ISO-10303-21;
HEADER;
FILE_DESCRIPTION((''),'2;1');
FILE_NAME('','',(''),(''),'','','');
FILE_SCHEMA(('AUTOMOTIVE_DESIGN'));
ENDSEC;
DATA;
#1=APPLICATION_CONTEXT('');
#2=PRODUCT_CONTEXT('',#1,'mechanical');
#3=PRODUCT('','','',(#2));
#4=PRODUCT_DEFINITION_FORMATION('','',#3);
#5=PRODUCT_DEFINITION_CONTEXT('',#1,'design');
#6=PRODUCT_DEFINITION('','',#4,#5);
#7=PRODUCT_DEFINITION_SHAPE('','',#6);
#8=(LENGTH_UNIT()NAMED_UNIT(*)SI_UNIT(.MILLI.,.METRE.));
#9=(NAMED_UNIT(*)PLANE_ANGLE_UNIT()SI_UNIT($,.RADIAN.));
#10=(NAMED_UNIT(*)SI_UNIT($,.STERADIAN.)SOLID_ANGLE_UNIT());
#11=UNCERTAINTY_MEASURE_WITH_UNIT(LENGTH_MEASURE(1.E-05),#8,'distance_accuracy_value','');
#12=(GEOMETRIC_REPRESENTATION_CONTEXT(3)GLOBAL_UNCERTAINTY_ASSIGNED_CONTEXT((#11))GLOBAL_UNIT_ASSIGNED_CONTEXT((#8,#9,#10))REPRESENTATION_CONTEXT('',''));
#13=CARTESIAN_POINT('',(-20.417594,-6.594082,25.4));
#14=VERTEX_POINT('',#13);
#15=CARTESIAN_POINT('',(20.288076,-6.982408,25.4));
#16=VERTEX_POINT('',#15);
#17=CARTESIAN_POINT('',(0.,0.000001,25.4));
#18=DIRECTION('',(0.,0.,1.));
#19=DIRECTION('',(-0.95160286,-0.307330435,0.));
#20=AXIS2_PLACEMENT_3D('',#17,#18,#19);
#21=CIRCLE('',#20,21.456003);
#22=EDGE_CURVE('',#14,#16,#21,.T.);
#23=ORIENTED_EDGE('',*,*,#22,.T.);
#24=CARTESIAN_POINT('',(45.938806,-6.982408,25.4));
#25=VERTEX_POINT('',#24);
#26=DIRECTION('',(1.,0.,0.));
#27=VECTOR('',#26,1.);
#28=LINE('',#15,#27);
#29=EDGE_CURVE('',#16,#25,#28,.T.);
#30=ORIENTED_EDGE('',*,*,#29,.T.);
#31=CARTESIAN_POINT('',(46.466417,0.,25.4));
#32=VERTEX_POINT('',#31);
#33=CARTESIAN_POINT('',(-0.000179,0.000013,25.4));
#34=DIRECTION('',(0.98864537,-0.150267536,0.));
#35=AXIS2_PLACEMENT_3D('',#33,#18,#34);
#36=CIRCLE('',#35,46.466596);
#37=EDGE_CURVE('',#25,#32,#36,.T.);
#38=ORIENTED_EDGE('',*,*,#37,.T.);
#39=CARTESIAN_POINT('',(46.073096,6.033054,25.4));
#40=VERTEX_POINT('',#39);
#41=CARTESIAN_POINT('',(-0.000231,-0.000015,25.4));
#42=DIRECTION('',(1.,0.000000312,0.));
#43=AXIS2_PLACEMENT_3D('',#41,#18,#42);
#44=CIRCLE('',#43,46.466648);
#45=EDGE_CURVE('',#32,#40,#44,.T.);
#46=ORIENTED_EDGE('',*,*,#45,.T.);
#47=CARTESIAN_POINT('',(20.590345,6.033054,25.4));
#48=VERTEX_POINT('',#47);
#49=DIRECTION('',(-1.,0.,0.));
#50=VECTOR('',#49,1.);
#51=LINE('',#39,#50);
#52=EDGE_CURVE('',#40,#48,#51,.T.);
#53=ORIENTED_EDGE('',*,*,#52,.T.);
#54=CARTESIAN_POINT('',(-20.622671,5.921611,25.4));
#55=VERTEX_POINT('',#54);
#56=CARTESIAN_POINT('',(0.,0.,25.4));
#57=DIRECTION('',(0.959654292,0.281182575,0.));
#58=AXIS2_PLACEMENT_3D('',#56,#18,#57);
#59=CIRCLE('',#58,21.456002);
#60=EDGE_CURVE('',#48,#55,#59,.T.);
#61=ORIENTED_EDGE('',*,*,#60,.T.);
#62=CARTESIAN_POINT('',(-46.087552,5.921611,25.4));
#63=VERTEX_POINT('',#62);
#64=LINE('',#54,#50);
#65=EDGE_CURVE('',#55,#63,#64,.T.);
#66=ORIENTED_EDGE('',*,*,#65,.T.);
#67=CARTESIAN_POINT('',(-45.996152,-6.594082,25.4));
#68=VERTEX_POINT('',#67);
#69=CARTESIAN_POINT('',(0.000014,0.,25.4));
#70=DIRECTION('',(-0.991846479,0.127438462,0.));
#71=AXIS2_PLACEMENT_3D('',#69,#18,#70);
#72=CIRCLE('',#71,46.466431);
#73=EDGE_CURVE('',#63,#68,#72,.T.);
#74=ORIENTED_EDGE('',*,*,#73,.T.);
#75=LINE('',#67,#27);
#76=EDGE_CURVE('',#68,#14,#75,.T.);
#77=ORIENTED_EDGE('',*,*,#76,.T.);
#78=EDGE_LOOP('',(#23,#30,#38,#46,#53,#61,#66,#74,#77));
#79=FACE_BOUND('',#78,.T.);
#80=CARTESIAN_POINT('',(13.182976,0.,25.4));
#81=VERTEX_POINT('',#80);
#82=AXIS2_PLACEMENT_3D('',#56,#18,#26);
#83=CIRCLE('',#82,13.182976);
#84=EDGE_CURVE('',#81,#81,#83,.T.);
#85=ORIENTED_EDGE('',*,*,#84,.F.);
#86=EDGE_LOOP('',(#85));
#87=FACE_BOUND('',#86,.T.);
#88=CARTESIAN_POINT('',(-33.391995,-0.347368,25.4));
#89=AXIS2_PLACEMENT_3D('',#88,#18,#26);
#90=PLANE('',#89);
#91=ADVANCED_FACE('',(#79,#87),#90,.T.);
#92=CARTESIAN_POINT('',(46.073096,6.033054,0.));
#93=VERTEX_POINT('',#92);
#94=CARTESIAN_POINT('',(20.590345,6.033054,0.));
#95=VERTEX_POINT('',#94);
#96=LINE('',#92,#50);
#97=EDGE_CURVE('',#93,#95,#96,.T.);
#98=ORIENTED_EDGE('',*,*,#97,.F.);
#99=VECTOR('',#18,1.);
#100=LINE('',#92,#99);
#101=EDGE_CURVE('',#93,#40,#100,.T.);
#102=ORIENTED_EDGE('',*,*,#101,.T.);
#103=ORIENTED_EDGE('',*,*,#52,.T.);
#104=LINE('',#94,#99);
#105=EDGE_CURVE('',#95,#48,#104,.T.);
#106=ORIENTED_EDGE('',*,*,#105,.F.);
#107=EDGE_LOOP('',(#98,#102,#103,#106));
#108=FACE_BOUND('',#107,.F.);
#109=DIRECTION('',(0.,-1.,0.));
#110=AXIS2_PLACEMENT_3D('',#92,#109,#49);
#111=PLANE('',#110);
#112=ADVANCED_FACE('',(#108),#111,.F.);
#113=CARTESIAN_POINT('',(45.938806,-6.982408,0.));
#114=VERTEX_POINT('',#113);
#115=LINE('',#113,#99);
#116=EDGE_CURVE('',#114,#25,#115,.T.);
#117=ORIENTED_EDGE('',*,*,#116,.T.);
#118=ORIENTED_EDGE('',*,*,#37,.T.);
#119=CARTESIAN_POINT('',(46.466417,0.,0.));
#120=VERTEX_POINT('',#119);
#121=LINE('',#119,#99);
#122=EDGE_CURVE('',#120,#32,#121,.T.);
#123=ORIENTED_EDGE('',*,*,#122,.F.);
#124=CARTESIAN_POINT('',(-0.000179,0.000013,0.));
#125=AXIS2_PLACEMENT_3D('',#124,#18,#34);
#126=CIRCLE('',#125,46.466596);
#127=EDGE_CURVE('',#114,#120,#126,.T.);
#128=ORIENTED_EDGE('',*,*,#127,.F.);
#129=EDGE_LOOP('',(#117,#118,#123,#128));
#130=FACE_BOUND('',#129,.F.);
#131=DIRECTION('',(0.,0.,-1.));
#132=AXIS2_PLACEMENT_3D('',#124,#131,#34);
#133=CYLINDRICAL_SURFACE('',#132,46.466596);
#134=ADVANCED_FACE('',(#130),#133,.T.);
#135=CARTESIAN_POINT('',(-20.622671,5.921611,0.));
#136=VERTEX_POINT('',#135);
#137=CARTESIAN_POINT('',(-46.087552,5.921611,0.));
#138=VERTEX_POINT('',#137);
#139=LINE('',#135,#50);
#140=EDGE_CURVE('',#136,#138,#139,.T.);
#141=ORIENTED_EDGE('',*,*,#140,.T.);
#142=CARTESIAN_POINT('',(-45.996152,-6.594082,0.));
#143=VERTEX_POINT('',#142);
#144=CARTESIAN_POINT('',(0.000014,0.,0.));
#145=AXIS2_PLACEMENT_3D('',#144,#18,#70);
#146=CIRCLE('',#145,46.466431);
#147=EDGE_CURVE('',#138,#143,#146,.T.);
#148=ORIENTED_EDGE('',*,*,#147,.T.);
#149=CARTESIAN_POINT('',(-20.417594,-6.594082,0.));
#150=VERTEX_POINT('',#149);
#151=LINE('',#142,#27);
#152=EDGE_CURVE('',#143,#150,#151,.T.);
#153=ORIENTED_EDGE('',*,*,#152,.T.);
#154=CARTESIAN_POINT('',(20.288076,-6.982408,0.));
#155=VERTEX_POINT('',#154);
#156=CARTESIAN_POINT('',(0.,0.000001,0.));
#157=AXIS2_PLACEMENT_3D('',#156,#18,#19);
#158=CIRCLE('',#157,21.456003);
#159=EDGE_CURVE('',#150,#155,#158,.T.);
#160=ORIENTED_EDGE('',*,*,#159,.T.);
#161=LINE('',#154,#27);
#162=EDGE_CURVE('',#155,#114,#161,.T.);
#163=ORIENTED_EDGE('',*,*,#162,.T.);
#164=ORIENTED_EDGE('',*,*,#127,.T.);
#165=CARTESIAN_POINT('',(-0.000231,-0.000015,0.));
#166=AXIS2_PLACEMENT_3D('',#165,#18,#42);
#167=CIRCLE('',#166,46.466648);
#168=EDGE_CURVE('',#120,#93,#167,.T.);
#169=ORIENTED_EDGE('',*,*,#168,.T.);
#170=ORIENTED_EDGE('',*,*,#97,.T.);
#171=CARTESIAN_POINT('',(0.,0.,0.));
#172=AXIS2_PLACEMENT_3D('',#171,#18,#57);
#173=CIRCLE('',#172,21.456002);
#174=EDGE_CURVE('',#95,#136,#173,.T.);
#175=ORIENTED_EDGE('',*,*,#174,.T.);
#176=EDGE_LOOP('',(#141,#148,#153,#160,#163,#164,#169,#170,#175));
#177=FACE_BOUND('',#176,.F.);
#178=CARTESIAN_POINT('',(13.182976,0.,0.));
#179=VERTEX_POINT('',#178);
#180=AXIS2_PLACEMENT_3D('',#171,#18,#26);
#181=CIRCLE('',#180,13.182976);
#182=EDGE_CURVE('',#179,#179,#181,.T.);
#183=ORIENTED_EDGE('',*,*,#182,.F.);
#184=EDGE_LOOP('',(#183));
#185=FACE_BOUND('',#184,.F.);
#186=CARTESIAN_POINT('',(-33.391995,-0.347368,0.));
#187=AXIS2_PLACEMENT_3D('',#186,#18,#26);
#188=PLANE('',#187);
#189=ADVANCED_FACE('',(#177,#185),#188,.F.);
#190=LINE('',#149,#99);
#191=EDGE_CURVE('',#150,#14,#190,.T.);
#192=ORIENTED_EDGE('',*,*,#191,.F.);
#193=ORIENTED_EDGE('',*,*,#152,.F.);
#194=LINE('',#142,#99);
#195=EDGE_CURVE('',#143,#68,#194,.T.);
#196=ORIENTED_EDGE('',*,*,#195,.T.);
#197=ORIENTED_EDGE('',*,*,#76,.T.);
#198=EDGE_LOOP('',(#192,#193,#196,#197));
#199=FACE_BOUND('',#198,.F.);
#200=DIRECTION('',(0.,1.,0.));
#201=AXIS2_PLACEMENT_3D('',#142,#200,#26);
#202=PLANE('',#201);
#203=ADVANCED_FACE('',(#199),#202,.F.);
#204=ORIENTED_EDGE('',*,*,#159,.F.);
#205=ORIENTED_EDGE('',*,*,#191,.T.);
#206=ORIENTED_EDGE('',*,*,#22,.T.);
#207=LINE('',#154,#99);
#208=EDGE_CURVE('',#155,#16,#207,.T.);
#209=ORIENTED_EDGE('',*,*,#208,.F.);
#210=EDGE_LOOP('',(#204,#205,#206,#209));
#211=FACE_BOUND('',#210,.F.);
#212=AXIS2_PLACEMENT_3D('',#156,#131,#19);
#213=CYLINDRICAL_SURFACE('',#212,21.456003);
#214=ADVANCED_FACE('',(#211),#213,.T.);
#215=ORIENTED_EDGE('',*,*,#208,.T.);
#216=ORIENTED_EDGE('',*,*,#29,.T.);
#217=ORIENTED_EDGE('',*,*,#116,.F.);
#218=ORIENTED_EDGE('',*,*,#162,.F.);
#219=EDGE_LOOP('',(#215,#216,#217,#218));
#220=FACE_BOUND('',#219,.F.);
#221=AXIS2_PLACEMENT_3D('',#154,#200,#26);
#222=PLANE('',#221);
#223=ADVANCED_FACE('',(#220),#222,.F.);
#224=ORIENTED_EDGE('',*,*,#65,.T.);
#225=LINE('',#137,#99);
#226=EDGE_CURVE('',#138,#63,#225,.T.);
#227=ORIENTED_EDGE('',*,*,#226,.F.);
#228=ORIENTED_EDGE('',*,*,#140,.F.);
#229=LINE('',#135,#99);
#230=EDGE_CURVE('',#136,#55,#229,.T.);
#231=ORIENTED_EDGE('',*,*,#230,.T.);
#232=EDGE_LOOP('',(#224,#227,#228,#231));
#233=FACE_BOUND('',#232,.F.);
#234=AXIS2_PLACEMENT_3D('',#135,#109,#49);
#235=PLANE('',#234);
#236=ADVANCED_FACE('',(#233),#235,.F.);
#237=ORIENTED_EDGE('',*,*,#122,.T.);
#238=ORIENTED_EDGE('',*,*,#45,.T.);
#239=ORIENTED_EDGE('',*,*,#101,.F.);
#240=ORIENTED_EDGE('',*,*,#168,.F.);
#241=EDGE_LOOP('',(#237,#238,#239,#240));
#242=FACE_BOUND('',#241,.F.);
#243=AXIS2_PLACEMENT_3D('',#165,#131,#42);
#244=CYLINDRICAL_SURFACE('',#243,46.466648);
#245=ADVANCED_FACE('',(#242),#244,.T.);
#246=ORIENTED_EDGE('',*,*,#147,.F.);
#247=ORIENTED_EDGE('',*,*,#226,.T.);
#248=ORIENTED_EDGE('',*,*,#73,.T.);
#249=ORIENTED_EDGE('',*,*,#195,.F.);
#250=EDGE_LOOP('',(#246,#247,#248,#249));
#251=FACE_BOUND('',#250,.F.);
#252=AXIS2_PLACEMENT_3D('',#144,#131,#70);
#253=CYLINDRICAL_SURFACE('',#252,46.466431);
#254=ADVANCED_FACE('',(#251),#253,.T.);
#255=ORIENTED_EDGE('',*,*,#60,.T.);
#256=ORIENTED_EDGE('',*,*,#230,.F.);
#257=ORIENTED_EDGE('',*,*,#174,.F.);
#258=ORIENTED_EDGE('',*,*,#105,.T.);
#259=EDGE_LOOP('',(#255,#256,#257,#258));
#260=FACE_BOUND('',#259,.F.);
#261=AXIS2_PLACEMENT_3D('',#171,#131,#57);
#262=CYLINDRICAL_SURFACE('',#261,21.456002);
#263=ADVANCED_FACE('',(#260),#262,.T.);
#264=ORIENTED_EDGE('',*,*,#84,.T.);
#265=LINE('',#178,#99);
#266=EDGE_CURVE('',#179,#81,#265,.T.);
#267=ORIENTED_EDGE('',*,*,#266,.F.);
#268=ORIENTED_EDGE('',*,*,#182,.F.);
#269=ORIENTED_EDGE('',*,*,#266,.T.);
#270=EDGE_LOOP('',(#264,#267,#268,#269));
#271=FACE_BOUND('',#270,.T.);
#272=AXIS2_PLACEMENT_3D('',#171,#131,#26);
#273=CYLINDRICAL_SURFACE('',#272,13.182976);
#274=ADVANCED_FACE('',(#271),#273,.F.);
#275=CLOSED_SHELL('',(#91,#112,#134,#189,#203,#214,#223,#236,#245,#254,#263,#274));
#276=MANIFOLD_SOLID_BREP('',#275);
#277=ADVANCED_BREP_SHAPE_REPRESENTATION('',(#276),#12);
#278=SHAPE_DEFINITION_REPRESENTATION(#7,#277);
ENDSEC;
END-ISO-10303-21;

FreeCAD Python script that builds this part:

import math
import FreeCAD as App
import Part
import Sketcher

V = App.Vector
Q = App.Units.Quantity

doc = App.newDocument("Part")
params = doc.addObject("Spreadsheet::Sheet", "Params")
for row, (alias, value) in enumerate([
    ("pad1_length", "1 in"),
], start=1):
    params.set(f"A{row}", alias)
    params.set(f"B{row}", "=" + value)
    params.setAlias(f"B{row}", alias)

body = doc.addObject("PartDesign::Body", "Body")

# Sketch on XY plane
sketch1 = doc.addObject("Sketcher::SketchObject", "Sketch")
body.addObject(sketch1)
sketch1.AttachmentSupport = (doc.XY_Plane, [""])
sketch1.MapMode = "FlatFace"
sketch1.addGeometry(Part.LineSegment(V(-20.622671, 5.921611, 0), V(-46.087552, 5.921611, 0)), False)
sketch1.addGeometry(Part.ArcOfCircle(Part.Circle(V(0.000014, 0, 0), V(0, 0, 1), 46.466431), math.radians(172.678404), math.radians(188.158424)), False)
sketch1.addGeometry(Part.LineSegment(V(-45.996152, -6.594082, 0), V(-20.417594, -6.594082, 0)), False)
sketch1.addGeometry(Part.ArcOfCircle(Part.Circle(V(0, 0.000001, 0), V(0, 0, 1), 21.456003), math.radians(-162.101576), math.radians(-18.991577)), False)
sketch1.addGeometry(Part.LineSegment(V(20.288076, -6.982408, 0), V(45.938806, -6.982408, 0)), False)
sketch1.addGeometry(Part.ArcOfCircle(Part.Circle(V(-0.000179, 0.000013, 0), V(0, 0, 1), 46.466596), math.radians(-8.642431), math.radians(-0.000016)), False)
sketch1.addGeometry(Part.ArcOfCircle(Part.Circle(V(-0.000231, -0.000015, 0), V(0, 0, 1), 46.466648), math.radians(0.000018), math.radians(7.460146)), False)
sketch1.addGeometry(Part.LineSegment(V(46.073096, 6.033054, 0), V(20.590345, 6.033054, 0)), False)
sketch1.addGeometry(Part.ArcOfCircle(Part.Circle(V(0, 0, 0), V(0, 0, 1), 21.456002), math.radians(16.330797), math.radians(163.979066)), False)
sketch1.addGeometry(Part.Circle(V(0, 0, 0), V(0, 0, 1), 13.182976), False)
sketch1.addConstraint(Sketcher.Constraint("Coincident", 0, 2, 1, 1))
sketch1.addConstraint(Sketcher.Constraint("Coincident", 1, 2, 2, 1))
sketch1.addConstraint(Sketcher.Constraint("Coincident", 2, 2, 3, 1))
sketch1.addConstraint(Sketcher.Constraint("Coincident", 3, 2, 4, 1))
sketch1.addConstraint(Sketcher.Constraint("Coincident", 4, 2, 5, 1))
sketch1.addConstraint(Sketcher.Constraint("Coincident", 5, 2, 6, 1))
sketch1.addConstraint(Sketcher.Constraint("Coincident", 6, 2, 7, 1))
sketch1.addConstraint(Sketcher.Constraint("Coincident", 7, 2, 8, 1))
sketch1.addConstraint(Sketcher.Constraint("Coincident", 8, 2, 0, 1))
sketch1.addConstraint(Sketcher.Constraint("Horizontal", 0))
sketch1.addConstraint(Sketcher.Constraint("Horizontal", 2))
sketch1.addConstraint(Sketcher.Constraint("Horizontal", 4))
sketch1.addConstraint(Sketcher.Constraint("Horizontal", 7))
sketch1.addConstraint(Sketcher.Constraint("Coincident", 3, 3, -1, 1))
sketch1.addConstraint(Sketcher.Constraint("Coincident", 8, 3, -1, 1))
sketch1.addConstraint(Sketcher.Constraint("Coincident", 9, 3, -1, 1))
sketch1.addConstraint(Sketcher.Constraint("PointOnObject", 1, 3, -1))
sketch1.addConstraint(Sketcher.Constraint("PointOnObject", 5, 2, -1))
sketch1.addConstraint(Sketcher.Constraint("Diameter", 9, Q("26.365952 mm")))
sketch1.addConstraint(Sketcher.Constraint("Radius", 1, Q("46.466431 mm")))
sketch1.addConstraint(Sketcher.Constraint("Radius", 6, Q("46.466648 mm")))
sketch1.addConstraint(Sketcher.Constraint("Radius", 3, Q("21.456003 mm")))
sketch1.addConstraint(Sketcher.Constraint("Radius", 5, Q("46.466596 mm")))
sketch1.addConstraint(Sketcher.Constraint("Radius", 8, Q("21.456002 mm")))
sketch1.addConstraint(Sketcher.Constraint("DistanceX", 0, 2, 0, 1, Q("25.464881 mm")))
sketch1.addConstraint(Sketcher.Constraint("DistanceX", 2, 1, 2, 2, Q("25.578558 mm")))
sketch1.addConstraint(Sketcher.Constraint("DistanceX", 4, 1, 4, 2, Q("25.65073 mm")))
sketch1.addConstraint(Sketcher.Constraint("DistanceX", 7, 2, 7, 1, Q("25.482751 mm")))
sketch1.addConstraint(Sketcher.Constraint("DistanceY", 5, 3, 0, 2, Q("5.921598 mm")))
sketch1.addConstraint(Sketcher.Constraint("DistanceX", 5, 3, -1, 1, Q("0.000179 mm")))
sketch1.addConstraint(Sketcher.Constraint("DistanceY", -1, 1, 0, 2, Q("5.921611 mm")))
sketch1.addConstraint(Sketcher.Constraint("DistanceX", 6, 2, 5, 2, Q("0.393321 mm")))
pad1 = doc.addObject("PartDesign::Pad", "Pad")
body.addObject(pad1)
pad1.Profile = sketch1
pad1.setExpression("Length", "Params.pad1_length")

doc.recompute()
